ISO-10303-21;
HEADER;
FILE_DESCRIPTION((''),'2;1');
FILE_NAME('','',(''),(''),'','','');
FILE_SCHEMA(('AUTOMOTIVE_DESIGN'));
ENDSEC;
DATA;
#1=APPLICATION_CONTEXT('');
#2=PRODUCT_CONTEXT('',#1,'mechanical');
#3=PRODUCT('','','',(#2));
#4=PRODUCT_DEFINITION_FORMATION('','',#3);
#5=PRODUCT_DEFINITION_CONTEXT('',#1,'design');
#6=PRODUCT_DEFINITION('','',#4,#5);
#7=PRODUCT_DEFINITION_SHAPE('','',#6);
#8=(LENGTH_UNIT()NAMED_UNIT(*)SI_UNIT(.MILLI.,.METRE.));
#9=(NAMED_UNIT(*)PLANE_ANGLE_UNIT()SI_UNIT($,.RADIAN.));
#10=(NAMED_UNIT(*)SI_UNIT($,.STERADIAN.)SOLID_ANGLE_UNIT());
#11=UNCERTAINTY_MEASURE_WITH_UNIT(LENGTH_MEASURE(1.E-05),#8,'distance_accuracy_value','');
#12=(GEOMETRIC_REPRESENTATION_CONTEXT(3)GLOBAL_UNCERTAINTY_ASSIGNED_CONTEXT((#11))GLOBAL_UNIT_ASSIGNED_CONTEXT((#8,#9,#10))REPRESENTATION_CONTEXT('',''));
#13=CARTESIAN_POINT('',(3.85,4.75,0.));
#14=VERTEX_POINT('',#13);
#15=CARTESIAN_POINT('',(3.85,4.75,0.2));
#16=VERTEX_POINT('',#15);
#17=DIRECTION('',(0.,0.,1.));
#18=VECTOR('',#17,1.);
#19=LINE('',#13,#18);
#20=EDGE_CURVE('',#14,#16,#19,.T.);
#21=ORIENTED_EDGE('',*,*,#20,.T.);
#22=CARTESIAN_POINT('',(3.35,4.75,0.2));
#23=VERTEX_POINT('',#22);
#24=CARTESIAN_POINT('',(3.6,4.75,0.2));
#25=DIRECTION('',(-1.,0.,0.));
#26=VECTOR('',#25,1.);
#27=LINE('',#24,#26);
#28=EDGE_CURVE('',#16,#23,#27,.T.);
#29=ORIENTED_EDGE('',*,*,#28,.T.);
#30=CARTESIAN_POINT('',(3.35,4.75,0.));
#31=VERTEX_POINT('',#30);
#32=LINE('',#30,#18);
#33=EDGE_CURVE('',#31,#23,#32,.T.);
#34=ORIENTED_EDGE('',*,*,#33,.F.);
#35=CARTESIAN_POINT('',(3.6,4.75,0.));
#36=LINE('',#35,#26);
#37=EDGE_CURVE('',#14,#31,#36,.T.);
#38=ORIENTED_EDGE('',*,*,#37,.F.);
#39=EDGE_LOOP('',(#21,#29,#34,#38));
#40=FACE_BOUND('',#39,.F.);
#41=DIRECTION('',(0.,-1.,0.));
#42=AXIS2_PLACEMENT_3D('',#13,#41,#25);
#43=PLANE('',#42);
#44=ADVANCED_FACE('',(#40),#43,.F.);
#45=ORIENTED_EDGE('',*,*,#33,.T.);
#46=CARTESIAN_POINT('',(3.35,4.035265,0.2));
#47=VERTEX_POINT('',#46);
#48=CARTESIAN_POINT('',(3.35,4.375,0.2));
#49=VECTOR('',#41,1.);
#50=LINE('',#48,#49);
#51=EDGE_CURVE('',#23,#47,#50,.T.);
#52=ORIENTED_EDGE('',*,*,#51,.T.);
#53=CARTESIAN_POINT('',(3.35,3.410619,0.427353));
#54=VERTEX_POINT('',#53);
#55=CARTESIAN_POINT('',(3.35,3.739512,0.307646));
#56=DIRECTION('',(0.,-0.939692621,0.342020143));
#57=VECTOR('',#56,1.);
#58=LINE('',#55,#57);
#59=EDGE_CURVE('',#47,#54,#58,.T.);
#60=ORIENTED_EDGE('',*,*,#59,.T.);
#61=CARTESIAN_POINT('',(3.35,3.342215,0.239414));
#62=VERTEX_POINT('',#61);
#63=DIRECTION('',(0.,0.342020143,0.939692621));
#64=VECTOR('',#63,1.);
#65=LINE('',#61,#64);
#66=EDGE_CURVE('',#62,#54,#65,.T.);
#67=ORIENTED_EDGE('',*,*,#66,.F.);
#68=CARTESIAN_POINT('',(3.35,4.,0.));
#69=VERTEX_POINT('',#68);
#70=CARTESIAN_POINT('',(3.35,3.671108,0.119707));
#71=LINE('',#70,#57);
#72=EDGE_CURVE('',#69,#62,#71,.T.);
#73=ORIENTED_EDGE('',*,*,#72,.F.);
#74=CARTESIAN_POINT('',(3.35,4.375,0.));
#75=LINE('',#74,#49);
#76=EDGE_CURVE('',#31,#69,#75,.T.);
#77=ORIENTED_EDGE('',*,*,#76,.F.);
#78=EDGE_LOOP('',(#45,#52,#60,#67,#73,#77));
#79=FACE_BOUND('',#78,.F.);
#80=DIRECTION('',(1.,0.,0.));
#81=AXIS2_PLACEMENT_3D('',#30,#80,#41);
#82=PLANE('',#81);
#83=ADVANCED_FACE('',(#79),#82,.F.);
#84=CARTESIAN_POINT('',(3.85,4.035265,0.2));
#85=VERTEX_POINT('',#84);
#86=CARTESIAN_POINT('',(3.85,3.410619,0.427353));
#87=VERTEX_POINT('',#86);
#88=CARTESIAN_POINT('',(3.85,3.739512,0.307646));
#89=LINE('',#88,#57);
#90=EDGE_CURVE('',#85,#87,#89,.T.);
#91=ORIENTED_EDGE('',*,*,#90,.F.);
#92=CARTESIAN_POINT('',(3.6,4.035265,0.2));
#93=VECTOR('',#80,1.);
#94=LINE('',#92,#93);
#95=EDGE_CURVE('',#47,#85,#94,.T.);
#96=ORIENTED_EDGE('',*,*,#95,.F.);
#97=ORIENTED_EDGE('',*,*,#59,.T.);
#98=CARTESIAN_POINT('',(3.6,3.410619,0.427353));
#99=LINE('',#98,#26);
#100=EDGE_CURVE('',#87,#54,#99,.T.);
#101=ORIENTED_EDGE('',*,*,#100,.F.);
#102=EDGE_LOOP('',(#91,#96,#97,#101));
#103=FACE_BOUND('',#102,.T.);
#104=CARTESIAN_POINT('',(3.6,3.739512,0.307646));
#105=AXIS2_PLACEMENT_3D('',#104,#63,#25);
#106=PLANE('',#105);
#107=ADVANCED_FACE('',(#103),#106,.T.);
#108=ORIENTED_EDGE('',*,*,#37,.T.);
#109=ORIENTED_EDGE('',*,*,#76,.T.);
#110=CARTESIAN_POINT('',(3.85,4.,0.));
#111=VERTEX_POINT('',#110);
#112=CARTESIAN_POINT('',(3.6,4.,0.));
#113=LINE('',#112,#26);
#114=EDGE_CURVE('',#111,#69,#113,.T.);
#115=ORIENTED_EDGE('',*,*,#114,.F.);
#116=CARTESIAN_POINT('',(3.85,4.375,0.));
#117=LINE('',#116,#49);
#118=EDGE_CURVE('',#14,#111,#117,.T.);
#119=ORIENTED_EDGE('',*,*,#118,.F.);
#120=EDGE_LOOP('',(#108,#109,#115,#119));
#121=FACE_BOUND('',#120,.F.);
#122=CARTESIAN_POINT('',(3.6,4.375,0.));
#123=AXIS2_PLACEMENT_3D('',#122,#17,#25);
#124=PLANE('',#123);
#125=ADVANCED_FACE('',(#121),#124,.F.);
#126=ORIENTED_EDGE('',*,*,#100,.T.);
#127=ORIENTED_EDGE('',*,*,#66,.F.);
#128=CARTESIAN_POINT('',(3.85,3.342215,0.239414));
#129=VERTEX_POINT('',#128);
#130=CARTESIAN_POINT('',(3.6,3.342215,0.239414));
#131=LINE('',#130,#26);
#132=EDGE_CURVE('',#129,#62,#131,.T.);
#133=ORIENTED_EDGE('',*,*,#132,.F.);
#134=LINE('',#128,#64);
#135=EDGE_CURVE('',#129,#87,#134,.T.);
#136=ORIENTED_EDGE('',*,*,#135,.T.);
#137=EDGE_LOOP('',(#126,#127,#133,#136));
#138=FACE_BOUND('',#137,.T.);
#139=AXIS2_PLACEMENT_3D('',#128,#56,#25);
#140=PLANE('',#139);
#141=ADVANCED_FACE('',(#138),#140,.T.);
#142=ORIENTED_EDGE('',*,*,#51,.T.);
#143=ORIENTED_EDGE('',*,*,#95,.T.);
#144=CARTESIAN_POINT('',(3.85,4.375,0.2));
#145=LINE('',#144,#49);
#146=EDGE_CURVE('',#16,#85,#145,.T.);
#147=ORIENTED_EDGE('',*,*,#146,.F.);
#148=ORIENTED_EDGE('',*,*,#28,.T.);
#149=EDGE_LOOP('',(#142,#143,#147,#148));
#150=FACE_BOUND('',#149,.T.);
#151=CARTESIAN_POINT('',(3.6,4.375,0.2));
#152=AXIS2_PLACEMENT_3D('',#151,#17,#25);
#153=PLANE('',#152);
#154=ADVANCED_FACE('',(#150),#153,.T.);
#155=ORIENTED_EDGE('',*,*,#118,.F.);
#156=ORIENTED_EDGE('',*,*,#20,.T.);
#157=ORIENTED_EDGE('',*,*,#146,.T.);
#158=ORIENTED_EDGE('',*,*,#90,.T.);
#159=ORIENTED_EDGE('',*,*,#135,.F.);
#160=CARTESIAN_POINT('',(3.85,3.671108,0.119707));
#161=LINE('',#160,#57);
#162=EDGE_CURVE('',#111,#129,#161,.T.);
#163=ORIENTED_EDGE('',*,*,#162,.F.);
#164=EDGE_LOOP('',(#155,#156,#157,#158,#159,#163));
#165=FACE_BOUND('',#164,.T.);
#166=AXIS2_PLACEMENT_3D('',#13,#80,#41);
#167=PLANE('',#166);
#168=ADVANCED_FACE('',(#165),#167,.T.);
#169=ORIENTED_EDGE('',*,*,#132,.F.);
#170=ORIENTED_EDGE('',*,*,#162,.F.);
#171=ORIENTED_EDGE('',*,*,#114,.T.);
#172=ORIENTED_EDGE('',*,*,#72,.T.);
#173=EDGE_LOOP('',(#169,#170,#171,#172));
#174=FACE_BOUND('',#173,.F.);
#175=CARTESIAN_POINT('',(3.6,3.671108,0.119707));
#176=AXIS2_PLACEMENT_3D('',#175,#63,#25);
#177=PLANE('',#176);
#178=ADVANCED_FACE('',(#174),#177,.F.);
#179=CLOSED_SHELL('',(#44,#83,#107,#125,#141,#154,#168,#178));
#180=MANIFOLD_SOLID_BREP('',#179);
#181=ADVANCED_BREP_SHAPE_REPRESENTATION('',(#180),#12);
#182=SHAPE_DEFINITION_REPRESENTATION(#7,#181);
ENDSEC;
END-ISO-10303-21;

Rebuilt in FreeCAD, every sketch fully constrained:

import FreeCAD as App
import Part
import Sketcher


def add_polygon(sketch, points):
    """Adds a closed chain of lines whose ends are joined by coincident constraints."""
    first, n = sketch.GeometryCount, len(points)
    for a, b in zip(points, points[1:] + points[:1]):
        sketch.addGeometry(Part.LineSegment(App.Vector(*a, 0), App.Vector(*b, 0)), False)
    for i in range(n):
        sketch.addConstraint(Sketcher.Constraint("Coincident", first + i, 2, first + (i + 1) % n, 1))

doc = App.newDocument("Part")
params = doc.addObject("Spreadsheet::Sheet", "Params")
for row, (alias, value) in enumerate([
    ("sketch1_width", "0.5 mm"),
    ("sketch1_height", "0.75 mm"),
    ("pad1_length", "0.2 mm"),
    ("sketch2_width", "0.5 mm"),
    ("sketch2_height", "0.7 mm"),
    ("pad2_length", "0.2 mm"),
], start=1):
    params.set(f"A{row}", alias)
    params.set(f"B{row}", "=" + value)
    params.setAlias(f"B{row}", alias)

body = doc.addObject("PartDesign::Body", "Body")

# Sketch on XY plane
sketch1 = body.newObject("Sketcher::SketchObject", "Sketch")
sketch1.AttachmentSupport = (doc.getObject("XY_Plane"), [""])
sketch1.MapMode = "FlatFace"
add_polygon(sketch1, [(0, -0.5), (0, -1.25), (0.5, -1.25), (0.5, -0.5)])  # lines 0-3
sketch1.addConstraint(Sketcher.Constraint("Vertical", 0))
sketch1.addConstraint(Sketcher.Constraint("Horizontal", 1))
sketch1.addConstraint(Sketcher.Constraint("Vertical", 2))
sketch1.addConstraint(Sketcher.Constraint("Horizontal", 3))
sketch1.addConstraint(Sketcher.Constraint("PointOnObject", 0, 2, -2))
sketch1.addConstraint(Sketcher.Constraint("DistanceX", 1, 1, 1, 2, 0.5))
sketch1.addConstraint(Sketcher.Constraint("DistanceY", 0, 2, 0, 1, 0.75))
sketch1.addConstraint(Sketcher.Constraint("DistanceY", 2, 2, -1, 1, 0.5))
sketch1.setExpression("Constraints[9]", "Params.sketch1_width")
sketch1.setExpression("Constraints[10]", "Params.sketch1_height")
pad1 = body.newObject("PartDesign::Pad", "Pad")
pad1.Profile = sketch1
pad1.setExpression("Length", "Params.pad1_length")
body2 = doc.addObject("PartDesign::Body", "Body001")

# Sketch on XY plane
sketch2 = body2.newObject("Sketcher::SketchObject", "Sketch001")
sketch2.AttachmentSupport = (doc.getObject("XY_Plane001"), [""])
sketch2.MapMode = "FlatFace"
add_polygon(sketch2, [(0, 0.7), (0, 0), (0.5, 0), (0.5, 0.7)])  # lines 0-3
sketch2.addConstraint(Sketcher.Constraint("Vertical", 0))
sketch2.addConstraint(Sketcher.Constraint("Horizontal", 1))
sketch2.addConstraint(Sketcher.Constraint("Vertical", 2))
sketch2.addConstraint(Sketcher.Constraint("Horizontal", 3))
sketch2.addConstraint(Sketcher.Constraint("Coincident", 0, 2, -1, 1))
sketch2.addConstraint(Sketcher.Constraint("DistanceX", 1, 1, 1, 2, 0.5))
sketch2.addConstraint(Sketcher.Constraint("DistanceY", 0, 2, 0, 1, 0.7))
sketch2.setExpression("Constraints[9]", "Params.sketch2_width")
sketch2.setExpression("Constraints[10]", "Params.sketch2_height")
pad2 = body2.newObject("PartDesign::Pad", "Pad001")
pad2.Profile = sketch2
pad2.setExpression("Length", "Params.pad2_length")
body3 = doc.addObject("PartDesign::Body", "Body002")
doc.recompute()

body2.Placement = App.Placement(App.Vector(0, -0.5, 0), App.Rotation(App.Vector(1, 0, 0), 20))
boolean = body3.newObject("PartDesign::Boolean", "Boolean")
boolean.Type = "Fuse"
boolean.addObjects([body2])
doc.recompute()

boolean2 = body3.newObject("PartDesign::Boolean", "Boolean001")
boolean2.Type = "Fuse"
boolean2.addObjects([body])
body4 = doc.addObject("PartDesign::Body", "Body003")
doc.recompute()

body3.Placement = App.Placement(App.Vector(3.85, 3.5, 0), App.Rotation(App.Vector(0, 0, 1), 180))
boolean3 = body4.newObject("PartDesign::Boolean", "Boolean002")
boolean3.Type = "Fuse"
boolean3.addObjects([body3])

doc.recompute()
